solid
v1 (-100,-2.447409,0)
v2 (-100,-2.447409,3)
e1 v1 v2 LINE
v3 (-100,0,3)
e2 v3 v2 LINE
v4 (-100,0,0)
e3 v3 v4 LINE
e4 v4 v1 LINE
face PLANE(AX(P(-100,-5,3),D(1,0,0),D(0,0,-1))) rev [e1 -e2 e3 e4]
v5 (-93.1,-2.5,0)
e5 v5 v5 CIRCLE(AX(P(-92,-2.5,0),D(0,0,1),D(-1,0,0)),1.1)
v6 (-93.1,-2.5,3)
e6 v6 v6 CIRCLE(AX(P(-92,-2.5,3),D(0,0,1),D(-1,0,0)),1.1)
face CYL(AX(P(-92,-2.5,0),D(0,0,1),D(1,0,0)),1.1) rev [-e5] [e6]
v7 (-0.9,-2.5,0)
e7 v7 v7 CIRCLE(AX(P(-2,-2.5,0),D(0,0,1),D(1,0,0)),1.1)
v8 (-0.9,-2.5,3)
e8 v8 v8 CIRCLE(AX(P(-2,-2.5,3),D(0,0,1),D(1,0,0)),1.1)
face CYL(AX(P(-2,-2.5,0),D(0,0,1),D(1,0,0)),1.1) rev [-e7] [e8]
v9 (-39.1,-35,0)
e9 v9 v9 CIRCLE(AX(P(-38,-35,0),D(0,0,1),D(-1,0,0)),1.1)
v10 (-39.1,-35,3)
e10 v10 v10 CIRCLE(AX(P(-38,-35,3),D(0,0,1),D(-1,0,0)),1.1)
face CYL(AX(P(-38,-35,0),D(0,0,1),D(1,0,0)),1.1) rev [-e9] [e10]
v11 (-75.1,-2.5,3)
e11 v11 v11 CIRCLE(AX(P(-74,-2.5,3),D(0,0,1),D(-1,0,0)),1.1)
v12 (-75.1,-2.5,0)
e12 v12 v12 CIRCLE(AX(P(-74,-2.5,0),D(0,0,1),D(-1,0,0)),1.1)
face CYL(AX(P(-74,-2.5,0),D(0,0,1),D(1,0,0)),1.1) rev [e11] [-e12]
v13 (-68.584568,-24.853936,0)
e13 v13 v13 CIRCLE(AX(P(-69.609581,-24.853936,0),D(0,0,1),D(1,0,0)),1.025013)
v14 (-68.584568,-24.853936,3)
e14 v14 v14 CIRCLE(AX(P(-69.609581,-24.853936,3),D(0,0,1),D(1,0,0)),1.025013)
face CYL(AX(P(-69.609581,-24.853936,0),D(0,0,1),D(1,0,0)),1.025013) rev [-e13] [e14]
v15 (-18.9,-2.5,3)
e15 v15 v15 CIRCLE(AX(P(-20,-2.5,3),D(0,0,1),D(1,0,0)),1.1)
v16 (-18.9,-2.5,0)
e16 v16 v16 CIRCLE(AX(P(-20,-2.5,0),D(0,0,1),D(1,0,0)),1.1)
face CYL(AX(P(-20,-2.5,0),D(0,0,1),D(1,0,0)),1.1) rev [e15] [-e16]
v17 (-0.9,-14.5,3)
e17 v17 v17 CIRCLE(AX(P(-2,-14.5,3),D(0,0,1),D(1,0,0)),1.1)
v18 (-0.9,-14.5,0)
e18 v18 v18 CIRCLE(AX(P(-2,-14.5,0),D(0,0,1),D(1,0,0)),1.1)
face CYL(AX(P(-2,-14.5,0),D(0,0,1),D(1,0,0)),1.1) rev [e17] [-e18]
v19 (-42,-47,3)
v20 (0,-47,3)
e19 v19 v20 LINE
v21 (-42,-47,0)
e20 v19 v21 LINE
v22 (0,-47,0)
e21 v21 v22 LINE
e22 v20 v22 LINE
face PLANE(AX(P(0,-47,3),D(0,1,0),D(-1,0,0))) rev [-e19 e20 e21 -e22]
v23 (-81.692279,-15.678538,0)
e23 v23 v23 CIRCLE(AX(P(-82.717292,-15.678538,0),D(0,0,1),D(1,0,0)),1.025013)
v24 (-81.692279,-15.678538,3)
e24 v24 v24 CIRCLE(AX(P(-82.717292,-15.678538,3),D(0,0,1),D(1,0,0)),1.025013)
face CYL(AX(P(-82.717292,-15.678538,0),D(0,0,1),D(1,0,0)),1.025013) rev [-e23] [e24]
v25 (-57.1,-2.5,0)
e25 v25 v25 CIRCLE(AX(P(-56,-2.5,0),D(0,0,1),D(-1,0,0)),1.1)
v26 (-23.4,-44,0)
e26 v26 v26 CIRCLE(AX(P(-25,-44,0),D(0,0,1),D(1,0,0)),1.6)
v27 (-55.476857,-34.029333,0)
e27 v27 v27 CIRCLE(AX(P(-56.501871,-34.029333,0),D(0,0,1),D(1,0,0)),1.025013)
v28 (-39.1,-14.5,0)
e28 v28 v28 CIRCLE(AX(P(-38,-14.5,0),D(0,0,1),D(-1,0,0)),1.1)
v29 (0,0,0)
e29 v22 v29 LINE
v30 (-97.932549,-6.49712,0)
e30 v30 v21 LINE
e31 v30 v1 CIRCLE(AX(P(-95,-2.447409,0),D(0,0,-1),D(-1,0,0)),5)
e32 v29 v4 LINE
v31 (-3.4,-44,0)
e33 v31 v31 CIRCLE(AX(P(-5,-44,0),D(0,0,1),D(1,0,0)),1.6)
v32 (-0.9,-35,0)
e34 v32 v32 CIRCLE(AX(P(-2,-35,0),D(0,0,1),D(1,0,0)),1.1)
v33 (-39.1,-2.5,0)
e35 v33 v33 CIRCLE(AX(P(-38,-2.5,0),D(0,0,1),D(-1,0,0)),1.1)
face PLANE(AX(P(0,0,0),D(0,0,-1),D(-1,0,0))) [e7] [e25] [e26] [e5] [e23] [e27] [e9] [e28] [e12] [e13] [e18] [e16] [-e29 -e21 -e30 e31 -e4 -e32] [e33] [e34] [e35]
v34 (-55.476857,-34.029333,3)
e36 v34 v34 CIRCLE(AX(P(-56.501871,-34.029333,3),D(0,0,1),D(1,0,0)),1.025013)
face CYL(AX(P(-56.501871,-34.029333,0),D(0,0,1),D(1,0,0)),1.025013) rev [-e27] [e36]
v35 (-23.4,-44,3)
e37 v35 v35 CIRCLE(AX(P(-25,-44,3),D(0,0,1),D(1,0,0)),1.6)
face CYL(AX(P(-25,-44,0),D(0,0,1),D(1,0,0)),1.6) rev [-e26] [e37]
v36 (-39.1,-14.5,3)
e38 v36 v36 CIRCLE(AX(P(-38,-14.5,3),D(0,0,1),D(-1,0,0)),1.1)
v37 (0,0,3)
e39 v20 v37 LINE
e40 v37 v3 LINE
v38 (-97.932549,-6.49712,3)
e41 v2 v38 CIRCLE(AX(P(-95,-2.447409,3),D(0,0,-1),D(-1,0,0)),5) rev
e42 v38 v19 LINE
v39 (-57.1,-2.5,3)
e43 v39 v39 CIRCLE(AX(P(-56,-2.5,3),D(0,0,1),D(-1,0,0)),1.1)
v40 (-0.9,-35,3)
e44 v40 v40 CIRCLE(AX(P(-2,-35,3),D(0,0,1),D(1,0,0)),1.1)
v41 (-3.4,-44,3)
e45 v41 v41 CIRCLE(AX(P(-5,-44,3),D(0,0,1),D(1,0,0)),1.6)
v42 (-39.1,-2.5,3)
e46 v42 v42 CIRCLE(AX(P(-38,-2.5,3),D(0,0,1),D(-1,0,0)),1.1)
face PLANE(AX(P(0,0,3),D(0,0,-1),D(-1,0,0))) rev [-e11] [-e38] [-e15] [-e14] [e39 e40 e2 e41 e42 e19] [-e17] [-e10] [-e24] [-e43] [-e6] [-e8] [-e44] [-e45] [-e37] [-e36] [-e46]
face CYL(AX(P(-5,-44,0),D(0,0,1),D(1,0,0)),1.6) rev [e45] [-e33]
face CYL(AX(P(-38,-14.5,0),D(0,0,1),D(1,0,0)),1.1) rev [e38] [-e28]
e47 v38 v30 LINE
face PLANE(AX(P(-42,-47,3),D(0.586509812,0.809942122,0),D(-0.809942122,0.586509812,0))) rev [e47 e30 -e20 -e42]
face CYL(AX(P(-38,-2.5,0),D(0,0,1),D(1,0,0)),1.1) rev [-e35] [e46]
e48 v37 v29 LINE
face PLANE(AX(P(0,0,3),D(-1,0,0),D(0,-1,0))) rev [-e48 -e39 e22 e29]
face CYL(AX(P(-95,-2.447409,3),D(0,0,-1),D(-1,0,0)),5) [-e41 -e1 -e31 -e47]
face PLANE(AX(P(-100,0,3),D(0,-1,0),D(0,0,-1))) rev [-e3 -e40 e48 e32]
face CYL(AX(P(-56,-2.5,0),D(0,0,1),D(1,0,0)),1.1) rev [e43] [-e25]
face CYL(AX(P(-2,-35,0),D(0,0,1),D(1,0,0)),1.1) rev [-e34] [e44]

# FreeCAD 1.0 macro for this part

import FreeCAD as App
import Part
import Sketcher

V = App.Vector
Q = App.Units.Quantity


def edges_at(feature, points):
    """Names of the edges that pass closest to the given points."""
    edges = feature.Shape.Edges
    near = lambda p: min(range(len(edges)), key=lambda i: edges[i].distToShape(Part.Vertex(*p))[0])
    return sorted({f"Edge{near(p) + 1}" for p in points})


def add_polygon(sketch, points):
    """Adds a closed chain of lines whose ends are joined by coincident constraints."""
    first, n = sketch.GeometryCount, len(points)
    for a, b in zip(points, points[1:] + points[:1]):
        sketch.addGeometry(Part.LineSegment(App.Vector(*a, 0), App.Vector(*b, 0)), False)
    for i in range(n):
        sketch.addConstraint(Sketcher.Constraint("Coincident", first + i, 2, first + (i + 1) % n, 1))

doc = App.newDocument("Part")
params = doc.addObject("Spreadsheet::Sheet", "Params")
for row, (alias, value) in enumerate([
    ("sketch1_width", "100 mm"),
    ("sketch1_width2", "42 mm"),
    ("sketch1_height", "47 mm"),
    ("sketch1_height2", "5 mm"),
    ("pad1_length", "3 mm"),
    ("sketch2_diameter", "2.2 mm"),
    ("sketch2_diameter2", "3.2 mm"),
    ("fillet_radius", "5 mm"),
], start=1):
    params.set(f"A{row}", alias)
    params.set(f"B{row}", "=" + value)
    params.setAlias(f"B{row}", alias)

body = doc.addObject("PartDesign::Body", "Body")

# Sketch on XY plane
sketch1 = body.newObject("Sketcher::SketchObject", "Sketch")
sketch1.AttachmentSupport = (doc.getObject("XY_Plane"), [""])
sketch1.MapMode = "FlatFace"
add_polygon(sketch1, [(0, -47), (0, 0), (-100, 0), (-100, -5), (-42, -47)])  # lines 0-4
sketch1.addConstraint([
    Sketcher.Constraint("Vertical", 0),
    Sketcher.Constraint("Horizontal", 1),
    Sketcher.Constraint("Vertical", 2),
    Sketcher.Constraint("Horizontal", 4),
    Sketcher.Constraint("Coincident", 0, 2, -1, 1),
    Sketcher.Constraint("DistanceX", 1, 2, 1, 1, Q("100 mm")),
    Sketcher.Constraint("DistanceX", 4, 1, 4, 2, Q("42 mm")),
    Sketcher.Constraint("DistanceY", 0, 1, 0, 2, Q("47 mm")),
    Sketcher.Constraint("DistanceY", 2, 2, 2, 1, Q("5 mm")),
])
sketch1.setExpression("Constraints[10]", "Params.sketch1_width")
sketch1.setExpression("Constraints[11]", "Params.sketch1_width2")
sketch1.setExpression("Constraints[12]", "Params.sketch1_height")
sketch1.setExpression("Constraints[13]", "Params.sketch1_height2")
pad1 = body.newObject("PartDesign::Pad", "Pad")
pad1.Profile = sketch1
pad1.setExpression("Length", "Params.pad1_length")

# Sketch on XY plane
sketch2 = body.newObject("Sketcher::SketchObject", "Sketch001")
sketch2.AttachmentSupport = (doc.getObject("XY_Plane"), [""])
sketch2.MapMode = "FlatFace"
sketch2.AttachmentOffset = App.Placement(V(0, 0, 3), App.Rotation())
sketch2.addGeometry([
    Part.Circle(V(-38, -35, 0), V(0, 0, 1), 1.1),  # 0
    Part.Circle(V(-38, -14.5, 0), V(0, 0, 1), 1.1),  # 1
    Part.Circle(V(-38, -2.5, 0), V(0, 0, 1), 1.1),  # 2
    Part.Circle(V(-56, -2.5, 0), V(0, 0, 1), 1.1),  # 3
    Part.Circle(V(-74, -2.5, 0), V(0, 0, 1), 1.1),  # 4
    Part.Circle(V(-92, -2.5, 0), V(0, 0, 1), 1.1),  # 5
    Part.Circle(V(-56.5, -34, 0), V(0, 0, 1), 1),  # 6
    Part.Circle(V(-69.6, -24.9, 0), V(0, 0, 1), 1),  # 7
    Part.Circle(V(-82.7, -15.7, 0), V(0, 0, 1), 1),  # 8
    Part.Circle(V(-20, -2.5, 0), V(0, 0, 1), 1.1),  # 9
    Part.Circle(V(-2, -2.5, 0), V(0, 0, 1), 1.1),  # 10
    Part.Circle(V(-2, -14.5, 0), V(0, 0, 1), 1.1),  # 11
    Part.Circle(V(-2, -35, 0), V(0, 0, 1), 1.1),  # 12
    Part.Circle(V(-5, -44, 0), V(0, 0, 1), 1.6),  # 13
    Part.Circle(V(-25, -44, 0), V(0, 0, 1), 1.6),  # 14
], False)
sketch2.addConstraint([
    Sketcher.Constraint("Equal", 0, 1),
    Sketcher.Constraint("Equal", 1, 2),
    Sketcher.Constraint("Equal", 2, 3),
    Sketcher.Constraint("Equal", 3, 4),
    Sketcher.Constraint("Equal", 4, 5),
    Sketcher.Constraint("Equal", 6, 7),
    Sketcher.Constraint("Equal", 7, 8),
    Sketcher.Constraint("Equal", 5, 9),
    Sketcher.Constraint("Equal", 9, 10),
    Sketcher.Constraint("Equal", 10, 11),
    Sketcher.Constraint("Equal", 11, 12),
    Sketcher.Constraint("Equal", 13, 14),
    Sketcher.Constraint("Horizontal", 2, 3, 3, 3),
    Sketcher.Constraint("Horizontal", 3, 3, 4, 3),
    Sketcher.Constraint("Horizontal", 4, 3, 5, 3),
    Sketcher.Constraint("Horizontal", 5, 3, 9, 3),
    Sketcher.Constraint("Horizontal", 9, 3, 10, 3),
    Sketcher.Constraint("Horizontal", 1, 3, 11, 3),
    Sketcher.Constraint("Horizontal", 0, 3, 12, 3),
    Sketcher.Constraint("Horizontal", 13, 3, 14, 3),
    Sketcher.Constraint("Vertical", 0, 3, 1, 3),
    Sketcher.Constraint("Vertical", 1, 3, 2, 3),
    Sketcher.Constraint("Vertical", 10, 3, 11, 3),
    Sketcher.Constraint("Vertical", 11, 3, 12, 3),
    Sketcher.Constraint("Diameter", 0, Q("2.2 mm")),
    Sketcher.Constraint("Diameter", 13, Q("3.2 mm")),
    Sketcher.Constraint("DistanceX", 0, 3, -1, 1, Q("38 mm")),
    Sketcher.Constraint("DistanceY", 0, 3, -1, 1, Q("35 mm")),
    Sketcher.Constraint("DistanceX", 3, 3, -1, 1, Q("56 mm")),
    Sketcher.Constraint("DistanceX", 4, 3, -1, 1, Q("74 mm")),
    Sketcher.Constraint("DistanceX", 5, 3, -1, 1, Q("92 mm")),
    Sketcher.Constraint("DistanceX", 9, 3, -1, 1, Q("20 mm")),
    Sketcher.Constraint("DistanceX", 10, 3, -1, 1, Q("2 mm")),
    Sketcher.Constraint("DistanceX", 13, 3, -1, 1, Q("5 mm")),
    Sketcher.Constraint("DistanceY", 13, 3, -1, 1, Q("44 mm")),
    Sketcher.Constraint("DistanceX", 14, 3, -1, 1, Q("25 mm")),
    Sketcher.Constraint("DistanceY", 1, 3, 2, 3, Q("12 mm")),
    Sketcher.Constraint("DistanceY", 1, 3, -1, 1, Q("14.5 mm")),
    Sketcher.Constraint("Diameter", 6, Q("2.050026 mm")),
    Sketcher.Constraint("DistanceX", 6, 3, -1, 1, Q("56.501871 mm")),
    Sketcher.Constraint("DistanceX", 7, 3, -1, 1, Q("69.609581 mm")),
    Sketcher.Constraint("DistanceY", 8, 3, -1, 1, Q("15.678538 mm")),
    Sketcher.Constraint("DistanceX", 8, 3, 7, 3, Q("13.107711 mm")),
    Sketcher.Constraint("DistanceY", 6, 3, -1, 1, Q("34.029333 mm")),
    Sketcher.Constraint("DistanceY", 7, 3, -1, 1, Q("24.853936 mm")),
])
sketch2.setExpression("Constraints[24]", "Params.sketch2_diameter")
sketch2.setExpression("Constraints[25]", "Params.sketch2_diameter2")
pocket1 = body.newObject("PartDesign::Pocket", "Pocket")
pocket1.Profile = sketch2
pocket1.Type = "ThroughAll"
doc.recompute()

fillet = body.newObject("PartDesign::Fillet", "Fillet")
fillet.Base = (pocket1, edges_at(pocket1, [(-100, -5, 1.5)]))
fillet.setExpression("Radius", "Params.fillet_radius")

doc.recompute()
